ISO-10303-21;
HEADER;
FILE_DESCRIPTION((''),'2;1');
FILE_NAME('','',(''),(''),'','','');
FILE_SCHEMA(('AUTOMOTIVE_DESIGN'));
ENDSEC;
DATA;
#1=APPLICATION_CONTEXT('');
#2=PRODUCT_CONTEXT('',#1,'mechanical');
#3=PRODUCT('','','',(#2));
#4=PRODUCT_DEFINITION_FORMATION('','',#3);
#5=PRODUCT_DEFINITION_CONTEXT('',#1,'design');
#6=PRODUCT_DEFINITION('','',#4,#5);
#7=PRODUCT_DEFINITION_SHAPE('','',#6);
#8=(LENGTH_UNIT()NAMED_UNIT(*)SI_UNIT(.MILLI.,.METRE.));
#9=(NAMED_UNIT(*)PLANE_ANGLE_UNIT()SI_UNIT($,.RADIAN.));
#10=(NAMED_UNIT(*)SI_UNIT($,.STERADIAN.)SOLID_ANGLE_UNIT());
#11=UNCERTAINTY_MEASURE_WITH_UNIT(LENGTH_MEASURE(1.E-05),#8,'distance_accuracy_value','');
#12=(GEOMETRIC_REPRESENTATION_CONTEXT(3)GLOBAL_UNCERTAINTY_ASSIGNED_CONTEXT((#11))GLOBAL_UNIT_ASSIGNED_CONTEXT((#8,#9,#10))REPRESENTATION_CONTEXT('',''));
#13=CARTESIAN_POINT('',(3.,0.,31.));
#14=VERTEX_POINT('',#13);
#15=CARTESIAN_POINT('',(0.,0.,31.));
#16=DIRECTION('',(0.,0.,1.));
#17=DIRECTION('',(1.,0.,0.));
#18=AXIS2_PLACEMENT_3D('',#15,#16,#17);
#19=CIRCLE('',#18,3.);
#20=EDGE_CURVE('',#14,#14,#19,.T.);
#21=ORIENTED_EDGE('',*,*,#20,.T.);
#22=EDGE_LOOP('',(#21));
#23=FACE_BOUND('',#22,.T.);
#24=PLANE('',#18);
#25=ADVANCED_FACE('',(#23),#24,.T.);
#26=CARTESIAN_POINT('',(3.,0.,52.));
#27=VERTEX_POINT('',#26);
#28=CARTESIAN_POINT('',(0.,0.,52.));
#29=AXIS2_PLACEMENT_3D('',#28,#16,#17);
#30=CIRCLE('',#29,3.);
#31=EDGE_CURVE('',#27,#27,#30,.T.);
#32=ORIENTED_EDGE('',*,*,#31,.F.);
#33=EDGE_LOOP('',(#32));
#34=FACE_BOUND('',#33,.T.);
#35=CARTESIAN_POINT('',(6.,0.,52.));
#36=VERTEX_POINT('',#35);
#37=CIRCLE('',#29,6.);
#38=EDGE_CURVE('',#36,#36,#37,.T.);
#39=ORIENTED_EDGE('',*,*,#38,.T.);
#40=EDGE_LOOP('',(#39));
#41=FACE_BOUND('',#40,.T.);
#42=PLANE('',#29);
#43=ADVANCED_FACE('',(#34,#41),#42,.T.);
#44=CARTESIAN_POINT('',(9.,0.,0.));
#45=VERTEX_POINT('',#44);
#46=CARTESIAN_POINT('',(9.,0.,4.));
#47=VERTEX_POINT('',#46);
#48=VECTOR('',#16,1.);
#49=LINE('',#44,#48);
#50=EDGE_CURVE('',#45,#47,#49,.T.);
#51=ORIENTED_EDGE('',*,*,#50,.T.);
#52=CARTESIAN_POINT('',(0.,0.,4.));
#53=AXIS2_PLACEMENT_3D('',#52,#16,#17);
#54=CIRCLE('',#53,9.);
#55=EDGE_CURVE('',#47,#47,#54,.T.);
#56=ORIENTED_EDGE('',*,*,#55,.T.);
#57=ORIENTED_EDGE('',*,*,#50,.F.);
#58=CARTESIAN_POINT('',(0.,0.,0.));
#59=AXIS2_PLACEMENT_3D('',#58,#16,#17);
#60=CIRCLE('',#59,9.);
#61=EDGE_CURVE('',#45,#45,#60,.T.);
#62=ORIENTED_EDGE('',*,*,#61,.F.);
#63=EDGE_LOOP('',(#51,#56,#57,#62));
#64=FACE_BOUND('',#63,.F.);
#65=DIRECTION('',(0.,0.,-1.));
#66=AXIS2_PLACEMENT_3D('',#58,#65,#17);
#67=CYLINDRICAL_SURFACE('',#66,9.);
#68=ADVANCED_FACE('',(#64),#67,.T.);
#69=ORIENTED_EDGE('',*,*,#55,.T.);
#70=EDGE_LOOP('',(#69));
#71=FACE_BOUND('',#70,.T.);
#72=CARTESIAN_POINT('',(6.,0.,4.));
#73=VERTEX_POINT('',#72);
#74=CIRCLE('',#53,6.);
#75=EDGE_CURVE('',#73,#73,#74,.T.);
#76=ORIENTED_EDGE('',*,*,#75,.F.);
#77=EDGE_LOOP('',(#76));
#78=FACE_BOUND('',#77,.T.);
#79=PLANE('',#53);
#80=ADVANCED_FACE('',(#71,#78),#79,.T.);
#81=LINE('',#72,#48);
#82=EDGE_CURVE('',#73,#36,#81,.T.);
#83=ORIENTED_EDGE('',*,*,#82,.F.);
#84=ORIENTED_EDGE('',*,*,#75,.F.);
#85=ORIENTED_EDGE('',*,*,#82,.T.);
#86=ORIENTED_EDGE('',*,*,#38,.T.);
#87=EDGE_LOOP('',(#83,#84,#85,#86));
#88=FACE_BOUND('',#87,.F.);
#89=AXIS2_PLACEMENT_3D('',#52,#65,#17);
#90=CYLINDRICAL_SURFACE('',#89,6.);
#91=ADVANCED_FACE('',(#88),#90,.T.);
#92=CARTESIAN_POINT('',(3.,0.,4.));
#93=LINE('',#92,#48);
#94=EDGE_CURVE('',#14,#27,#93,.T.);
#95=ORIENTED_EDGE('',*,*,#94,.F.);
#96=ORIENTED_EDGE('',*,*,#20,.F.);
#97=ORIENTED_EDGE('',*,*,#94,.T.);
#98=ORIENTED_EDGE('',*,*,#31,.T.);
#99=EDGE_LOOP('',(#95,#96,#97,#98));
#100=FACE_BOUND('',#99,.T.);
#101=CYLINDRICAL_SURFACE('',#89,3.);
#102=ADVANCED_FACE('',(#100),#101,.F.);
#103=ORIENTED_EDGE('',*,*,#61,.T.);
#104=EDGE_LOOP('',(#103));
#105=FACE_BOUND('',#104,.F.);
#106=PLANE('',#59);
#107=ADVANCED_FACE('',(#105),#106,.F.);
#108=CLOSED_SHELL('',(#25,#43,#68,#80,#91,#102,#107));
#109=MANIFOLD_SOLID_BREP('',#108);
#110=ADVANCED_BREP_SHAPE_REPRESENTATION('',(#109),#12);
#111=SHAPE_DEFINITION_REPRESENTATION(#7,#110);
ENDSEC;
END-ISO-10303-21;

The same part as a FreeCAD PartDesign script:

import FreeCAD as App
import Part
import Sketcher
Q = App.Units.Quantity

doc = App.newDocument("Part")
body = doc.addObject("PartDesign::Body", "Body")

# Sketch on XY plane
sketch1 = doc.addObject("Sketcher::SketchObject", "Sketch")
body.addObject(sketch1)
sketch1.AttachmentSupport = (doc.XY_Plane, [""])
sketch1.MapMode = "FlatFace"
sketch1.addGeometry(Part.Circle(App.Vector(0, 0, 0), App.Vector(0, 0, 1), 9), False)
sketch1.addConstraint([
    Sketcher.Constraint("Coincident", 0, 3, -1, 1),
    Sketcher.Constraint("Diameter", 0, Q("18 mm")),
])
pad1 = doc.addObject("PartDesign::Pad", "Pad")
body.addObject(pad1)
pad1.Profile = sketch1
pad1.Length = 4

# Sketch on XY plane
sketch2 = doc.addObject("Sketcher::SketchObject", "Sketch001")
body.addObject(sketch2)
sketch2.AttachmentSupport = (doc.XY_Plane, [""])
sketch2.MapMode = "FlatFace"
sketch2.AttachmentOffset = App.Placement(App.Vector(0, 0, 4), App.Rotation())
sketch2.addGeometry([
    Part.Circle(App.Vector(0, 0, 0), App.Vector(0, 0, 1), 6),
    Part.Circle(App.Vector(0, 0, 0), App.Vector(0, 0, 1), 3),
], False)
sketch2.addConstraint([
    Sketcher.Constraint("Coincident", 0, 3, -1, 1),
    Sketcher.Constraint("Coincident", 1, 3, -1, 1),
    Sketcher.Constraint("Diameter", 0, Q("12 mm")),
    Sketcher.Constraint("Diameter", 1, Q("6 mm")),
])
pad2 = doc.addObject("PartDesign::Pad", "Pad001")
body.addObject(pad2)
pad2.Profile = sketch2
pad2.Length = 48

# Sketch on XY plane
sketch3 = doc.addObject("Sketcher::SketchObject", "Sketch002")
body.addObject(sketch3)
sketch3.AttachmentSupport = (doc.XY_Plane, [""])
sketch3.MapMode = "FlatFace"
sketch3.AttachmentOffset = App.Placement(App.Vector(0, 0, 4), App.Rotation())
sketch3.addGeometry(Part.Circle(App.Vector(0, 0, 0), App.Vector(0, 0, 1), 3), False)
sketch3.addConstraint([
    Sketcher.Constraint("Coincident", 0, 3, -1, 1),
    Sketcher.Constraint("Diameter", 0, Q("6 mm")),
])
pad3 = doc.addObject("PartDesign::Pad", "Pad002")
body.addObject(pad3)
pad3.Profile = sketch3
pad3.Length = 27

doc.recompute()
